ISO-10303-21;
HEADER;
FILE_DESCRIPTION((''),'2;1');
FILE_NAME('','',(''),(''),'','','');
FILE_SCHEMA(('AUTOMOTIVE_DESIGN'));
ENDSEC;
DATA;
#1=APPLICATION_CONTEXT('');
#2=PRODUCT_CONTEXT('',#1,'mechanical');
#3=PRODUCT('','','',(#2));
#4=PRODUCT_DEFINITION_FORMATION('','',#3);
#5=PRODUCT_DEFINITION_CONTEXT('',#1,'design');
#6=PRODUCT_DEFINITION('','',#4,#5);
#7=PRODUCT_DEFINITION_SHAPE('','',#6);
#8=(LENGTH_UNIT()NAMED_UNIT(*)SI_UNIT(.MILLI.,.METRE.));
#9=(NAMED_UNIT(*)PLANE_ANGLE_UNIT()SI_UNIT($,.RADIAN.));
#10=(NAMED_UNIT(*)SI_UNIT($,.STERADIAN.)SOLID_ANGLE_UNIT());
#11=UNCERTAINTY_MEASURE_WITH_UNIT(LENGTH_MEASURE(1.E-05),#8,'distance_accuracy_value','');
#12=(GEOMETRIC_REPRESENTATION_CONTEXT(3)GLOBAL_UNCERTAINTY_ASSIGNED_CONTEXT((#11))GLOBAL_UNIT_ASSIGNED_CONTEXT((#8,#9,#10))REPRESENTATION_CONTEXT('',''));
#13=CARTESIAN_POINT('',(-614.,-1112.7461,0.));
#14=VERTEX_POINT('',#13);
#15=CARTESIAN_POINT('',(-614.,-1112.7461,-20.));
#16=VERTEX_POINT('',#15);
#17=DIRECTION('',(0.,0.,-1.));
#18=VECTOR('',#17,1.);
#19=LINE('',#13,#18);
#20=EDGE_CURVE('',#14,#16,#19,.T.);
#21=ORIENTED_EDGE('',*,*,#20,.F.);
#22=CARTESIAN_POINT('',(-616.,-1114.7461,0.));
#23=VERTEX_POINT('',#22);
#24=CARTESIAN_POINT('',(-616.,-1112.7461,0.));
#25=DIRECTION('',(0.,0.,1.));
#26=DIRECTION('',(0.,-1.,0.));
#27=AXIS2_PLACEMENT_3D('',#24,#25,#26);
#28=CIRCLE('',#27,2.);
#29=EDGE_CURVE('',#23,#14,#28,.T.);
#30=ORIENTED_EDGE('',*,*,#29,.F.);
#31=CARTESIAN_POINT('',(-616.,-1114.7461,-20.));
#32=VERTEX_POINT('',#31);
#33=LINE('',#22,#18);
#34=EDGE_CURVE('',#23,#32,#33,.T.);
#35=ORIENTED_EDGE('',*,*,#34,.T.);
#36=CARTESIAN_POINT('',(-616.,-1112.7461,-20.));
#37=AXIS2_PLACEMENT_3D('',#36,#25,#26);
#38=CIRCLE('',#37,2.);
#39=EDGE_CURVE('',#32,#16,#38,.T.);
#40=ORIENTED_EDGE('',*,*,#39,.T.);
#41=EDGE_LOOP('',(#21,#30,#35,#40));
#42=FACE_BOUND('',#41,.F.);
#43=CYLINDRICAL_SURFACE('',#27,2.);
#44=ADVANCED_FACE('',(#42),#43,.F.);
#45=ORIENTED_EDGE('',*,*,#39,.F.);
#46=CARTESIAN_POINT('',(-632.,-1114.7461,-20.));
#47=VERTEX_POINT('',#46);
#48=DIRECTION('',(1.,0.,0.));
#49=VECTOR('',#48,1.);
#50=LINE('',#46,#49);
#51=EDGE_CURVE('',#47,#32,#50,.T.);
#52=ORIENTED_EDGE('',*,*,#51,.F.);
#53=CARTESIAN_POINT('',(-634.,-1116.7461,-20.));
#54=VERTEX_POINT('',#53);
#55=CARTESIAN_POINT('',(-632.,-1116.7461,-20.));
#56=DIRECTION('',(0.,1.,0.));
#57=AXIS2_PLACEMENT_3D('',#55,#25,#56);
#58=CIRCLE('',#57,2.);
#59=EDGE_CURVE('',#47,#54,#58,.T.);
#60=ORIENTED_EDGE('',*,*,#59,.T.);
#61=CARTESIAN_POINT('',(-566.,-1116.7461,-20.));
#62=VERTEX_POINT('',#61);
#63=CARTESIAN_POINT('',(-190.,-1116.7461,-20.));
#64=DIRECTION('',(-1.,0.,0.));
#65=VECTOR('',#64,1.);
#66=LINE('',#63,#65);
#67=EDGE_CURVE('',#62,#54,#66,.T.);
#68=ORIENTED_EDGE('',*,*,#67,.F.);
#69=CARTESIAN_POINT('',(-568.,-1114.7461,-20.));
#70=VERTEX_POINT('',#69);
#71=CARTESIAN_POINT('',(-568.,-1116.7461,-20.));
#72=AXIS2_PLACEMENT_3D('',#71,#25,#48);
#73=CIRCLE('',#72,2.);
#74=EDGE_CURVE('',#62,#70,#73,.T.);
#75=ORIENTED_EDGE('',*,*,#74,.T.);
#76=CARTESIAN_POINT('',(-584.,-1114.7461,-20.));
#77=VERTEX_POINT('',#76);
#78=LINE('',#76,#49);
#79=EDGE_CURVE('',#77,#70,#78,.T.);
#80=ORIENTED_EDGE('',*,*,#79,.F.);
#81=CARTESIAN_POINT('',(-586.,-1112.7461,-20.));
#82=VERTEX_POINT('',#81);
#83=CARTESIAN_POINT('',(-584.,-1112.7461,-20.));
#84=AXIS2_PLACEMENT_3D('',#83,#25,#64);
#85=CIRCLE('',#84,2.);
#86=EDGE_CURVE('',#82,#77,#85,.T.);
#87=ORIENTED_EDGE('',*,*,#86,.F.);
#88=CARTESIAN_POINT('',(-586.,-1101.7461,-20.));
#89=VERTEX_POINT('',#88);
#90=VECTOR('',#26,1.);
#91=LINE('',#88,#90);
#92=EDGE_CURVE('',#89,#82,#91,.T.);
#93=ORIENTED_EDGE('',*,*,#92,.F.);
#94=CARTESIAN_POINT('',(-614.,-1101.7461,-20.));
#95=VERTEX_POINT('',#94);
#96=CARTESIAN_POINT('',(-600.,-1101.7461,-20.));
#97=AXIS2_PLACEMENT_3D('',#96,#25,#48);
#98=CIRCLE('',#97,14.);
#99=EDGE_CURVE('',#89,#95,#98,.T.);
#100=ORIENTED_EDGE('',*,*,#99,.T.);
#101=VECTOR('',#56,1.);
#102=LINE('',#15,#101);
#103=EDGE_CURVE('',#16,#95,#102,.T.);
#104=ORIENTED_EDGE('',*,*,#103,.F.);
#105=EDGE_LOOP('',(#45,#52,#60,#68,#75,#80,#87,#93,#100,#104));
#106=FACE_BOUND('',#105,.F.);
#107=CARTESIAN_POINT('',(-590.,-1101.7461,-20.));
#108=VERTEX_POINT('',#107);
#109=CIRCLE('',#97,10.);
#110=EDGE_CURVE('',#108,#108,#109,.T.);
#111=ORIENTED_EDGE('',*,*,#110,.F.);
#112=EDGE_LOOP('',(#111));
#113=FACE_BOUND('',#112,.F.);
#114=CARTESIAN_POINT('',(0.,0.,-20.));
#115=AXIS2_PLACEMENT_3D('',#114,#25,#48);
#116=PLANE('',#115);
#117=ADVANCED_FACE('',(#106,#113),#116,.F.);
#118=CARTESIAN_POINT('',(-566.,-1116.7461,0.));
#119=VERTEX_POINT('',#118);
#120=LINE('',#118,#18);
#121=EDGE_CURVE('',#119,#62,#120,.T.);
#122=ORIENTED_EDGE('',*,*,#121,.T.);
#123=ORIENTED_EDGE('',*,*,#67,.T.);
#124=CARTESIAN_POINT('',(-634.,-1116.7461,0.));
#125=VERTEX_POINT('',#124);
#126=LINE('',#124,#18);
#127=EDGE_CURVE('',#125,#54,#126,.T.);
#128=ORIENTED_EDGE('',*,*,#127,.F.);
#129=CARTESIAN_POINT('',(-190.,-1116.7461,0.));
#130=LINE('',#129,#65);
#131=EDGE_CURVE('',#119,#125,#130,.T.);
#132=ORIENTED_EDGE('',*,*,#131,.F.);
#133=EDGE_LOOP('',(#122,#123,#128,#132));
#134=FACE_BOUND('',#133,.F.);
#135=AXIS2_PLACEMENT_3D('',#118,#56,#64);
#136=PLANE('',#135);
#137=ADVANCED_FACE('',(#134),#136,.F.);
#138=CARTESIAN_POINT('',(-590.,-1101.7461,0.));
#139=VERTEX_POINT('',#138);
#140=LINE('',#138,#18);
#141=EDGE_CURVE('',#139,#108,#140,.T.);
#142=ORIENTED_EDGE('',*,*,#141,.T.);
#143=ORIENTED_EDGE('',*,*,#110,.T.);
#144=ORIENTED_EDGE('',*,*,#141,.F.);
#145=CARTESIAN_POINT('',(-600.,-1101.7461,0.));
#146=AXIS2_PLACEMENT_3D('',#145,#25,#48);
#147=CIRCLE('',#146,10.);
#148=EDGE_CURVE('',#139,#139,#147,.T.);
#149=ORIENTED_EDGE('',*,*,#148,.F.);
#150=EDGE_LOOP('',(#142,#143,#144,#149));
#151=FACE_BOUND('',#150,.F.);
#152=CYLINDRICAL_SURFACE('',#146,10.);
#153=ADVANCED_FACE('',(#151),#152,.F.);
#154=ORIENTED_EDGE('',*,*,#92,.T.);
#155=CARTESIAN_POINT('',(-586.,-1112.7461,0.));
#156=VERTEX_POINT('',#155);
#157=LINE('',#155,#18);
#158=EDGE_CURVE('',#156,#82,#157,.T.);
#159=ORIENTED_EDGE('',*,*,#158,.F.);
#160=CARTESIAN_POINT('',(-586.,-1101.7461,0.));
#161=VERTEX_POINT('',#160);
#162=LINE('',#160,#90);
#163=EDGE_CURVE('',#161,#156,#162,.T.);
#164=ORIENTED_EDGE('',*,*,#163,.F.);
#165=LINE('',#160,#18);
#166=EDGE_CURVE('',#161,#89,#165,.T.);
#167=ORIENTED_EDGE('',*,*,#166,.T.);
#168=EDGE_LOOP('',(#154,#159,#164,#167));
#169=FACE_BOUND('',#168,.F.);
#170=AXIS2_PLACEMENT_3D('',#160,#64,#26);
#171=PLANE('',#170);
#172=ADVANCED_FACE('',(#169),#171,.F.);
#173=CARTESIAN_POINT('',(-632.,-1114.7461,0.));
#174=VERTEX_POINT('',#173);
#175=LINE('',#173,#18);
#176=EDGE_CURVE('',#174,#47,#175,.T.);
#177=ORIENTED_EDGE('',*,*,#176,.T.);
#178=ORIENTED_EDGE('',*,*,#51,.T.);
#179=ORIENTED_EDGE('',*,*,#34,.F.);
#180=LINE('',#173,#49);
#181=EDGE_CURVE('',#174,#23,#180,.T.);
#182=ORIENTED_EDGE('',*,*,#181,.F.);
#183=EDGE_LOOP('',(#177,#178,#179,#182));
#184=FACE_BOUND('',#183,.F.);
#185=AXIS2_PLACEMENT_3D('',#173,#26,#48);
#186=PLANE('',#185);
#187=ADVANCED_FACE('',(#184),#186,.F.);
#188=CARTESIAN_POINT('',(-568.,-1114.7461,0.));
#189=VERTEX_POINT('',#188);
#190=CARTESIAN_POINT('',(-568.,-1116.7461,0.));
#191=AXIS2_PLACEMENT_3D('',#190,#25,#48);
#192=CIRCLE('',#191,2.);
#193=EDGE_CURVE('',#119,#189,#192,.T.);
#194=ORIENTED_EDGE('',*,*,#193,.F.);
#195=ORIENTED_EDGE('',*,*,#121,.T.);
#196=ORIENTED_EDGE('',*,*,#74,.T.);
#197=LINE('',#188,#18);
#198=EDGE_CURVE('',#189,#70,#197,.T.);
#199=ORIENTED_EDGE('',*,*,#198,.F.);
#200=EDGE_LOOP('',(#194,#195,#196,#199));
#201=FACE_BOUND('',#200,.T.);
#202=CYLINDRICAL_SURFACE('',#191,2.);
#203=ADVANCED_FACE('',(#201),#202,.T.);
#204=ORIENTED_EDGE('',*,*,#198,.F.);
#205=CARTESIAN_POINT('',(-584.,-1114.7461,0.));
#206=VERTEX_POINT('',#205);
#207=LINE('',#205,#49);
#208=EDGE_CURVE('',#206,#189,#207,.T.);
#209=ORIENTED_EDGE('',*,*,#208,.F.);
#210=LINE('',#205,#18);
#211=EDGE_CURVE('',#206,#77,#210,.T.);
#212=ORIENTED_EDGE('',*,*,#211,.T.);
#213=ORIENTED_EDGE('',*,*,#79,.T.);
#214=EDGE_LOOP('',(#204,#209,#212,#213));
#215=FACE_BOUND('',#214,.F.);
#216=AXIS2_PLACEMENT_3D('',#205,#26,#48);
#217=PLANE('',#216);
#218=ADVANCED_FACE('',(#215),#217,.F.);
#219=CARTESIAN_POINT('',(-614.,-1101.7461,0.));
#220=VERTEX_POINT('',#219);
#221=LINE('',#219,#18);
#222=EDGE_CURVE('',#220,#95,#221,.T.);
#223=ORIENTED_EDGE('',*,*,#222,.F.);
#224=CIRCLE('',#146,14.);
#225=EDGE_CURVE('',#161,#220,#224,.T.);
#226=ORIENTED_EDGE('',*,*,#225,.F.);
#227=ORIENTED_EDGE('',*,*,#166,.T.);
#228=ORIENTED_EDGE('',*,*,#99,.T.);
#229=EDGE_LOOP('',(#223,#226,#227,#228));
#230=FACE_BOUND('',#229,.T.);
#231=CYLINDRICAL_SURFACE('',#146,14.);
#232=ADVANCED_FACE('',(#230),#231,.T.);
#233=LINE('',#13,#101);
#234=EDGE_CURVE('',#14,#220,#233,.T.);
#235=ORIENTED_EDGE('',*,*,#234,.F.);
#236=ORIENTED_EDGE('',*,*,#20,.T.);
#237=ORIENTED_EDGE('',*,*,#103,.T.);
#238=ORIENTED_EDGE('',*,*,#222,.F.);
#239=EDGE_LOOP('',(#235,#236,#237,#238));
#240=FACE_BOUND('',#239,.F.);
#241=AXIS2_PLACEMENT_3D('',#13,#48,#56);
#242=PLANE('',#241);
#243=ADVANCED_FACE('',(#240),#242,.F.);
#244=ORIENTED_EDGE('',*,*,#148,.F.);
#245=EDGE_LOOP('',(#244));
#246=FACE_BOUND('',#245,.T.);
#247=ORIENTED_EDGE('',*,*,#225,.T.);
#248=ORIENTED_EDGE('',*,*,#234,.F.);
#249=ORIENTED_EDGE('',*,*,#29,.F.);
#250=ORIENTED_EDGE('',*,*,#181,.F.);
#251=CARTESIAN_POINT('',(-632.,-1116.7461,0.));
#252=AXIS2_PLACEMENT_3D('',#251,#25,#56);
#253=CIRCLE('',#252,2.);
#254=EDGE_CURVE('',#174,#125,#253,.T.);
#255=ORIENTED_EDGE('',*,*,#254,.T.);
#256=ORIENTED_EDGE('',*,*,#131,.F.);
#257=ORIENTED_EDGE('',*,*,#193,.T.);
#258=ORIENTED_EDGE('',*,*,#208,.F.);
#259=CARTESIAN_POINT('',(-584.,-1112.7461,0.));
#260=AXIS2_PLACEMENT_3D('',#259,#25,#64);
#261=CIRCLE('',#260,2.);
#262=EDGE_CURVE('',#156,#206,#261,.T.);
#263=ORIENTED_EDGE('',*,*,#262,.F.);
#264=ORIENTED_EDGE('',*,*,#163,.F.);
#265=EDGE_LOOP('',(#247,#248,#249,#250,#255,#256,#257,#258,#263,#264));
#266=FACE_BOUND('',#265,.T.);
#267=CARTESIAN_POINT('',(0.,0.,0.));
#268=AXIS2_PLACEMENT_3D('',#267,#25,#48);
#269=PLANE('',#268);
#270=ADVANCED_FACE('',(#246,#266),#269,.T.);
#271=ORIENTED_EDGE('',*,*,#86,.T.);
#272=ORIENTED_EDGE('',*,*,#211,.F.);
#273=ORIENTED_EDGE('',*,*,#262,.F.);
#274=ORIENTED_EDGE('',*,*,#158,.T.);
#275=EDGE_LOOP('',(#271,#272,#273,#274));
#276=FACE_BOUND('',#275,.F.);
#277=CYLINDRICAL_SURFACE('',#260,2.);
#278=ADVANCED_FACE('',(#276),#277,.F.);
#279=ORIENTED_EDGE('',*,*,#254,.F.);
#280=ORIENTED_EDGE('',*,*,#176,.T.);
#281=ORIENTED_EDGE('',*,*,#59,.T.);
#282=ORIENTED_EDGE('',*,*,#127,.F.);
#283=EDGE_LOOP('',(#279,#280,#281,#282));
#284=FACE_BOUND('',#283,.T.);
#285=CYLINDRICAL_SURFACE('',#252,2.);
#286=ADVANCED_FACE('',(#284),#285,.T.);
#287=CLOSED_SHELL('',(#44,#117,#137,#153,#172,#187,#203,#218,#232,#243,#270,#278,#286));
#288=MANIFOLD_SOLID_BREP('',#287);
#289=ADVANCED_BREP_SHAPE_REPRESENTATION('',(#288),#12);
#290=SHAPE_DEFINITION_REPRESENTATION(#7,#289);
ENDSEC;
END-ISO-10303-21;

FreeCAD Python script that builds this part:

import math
import FreeCAD as App
import Part
import Sketcher

doc = App.newDocument("Part")
body = doc.addObject("PartDesign::Body", "Body")

# Sketch on XY plane
sketch1 = body.newObject("Sketcher::SketchObject", "Sketch")
sketch1.AttachmentSupport = (doc.getObject("XY_Plane"), [""])
sketch1.MapMode = "FlatFace"
sketch1.addGeometry(Part.LineSegment(App.Vector(-634, -1116.7, 0), App.Vector(-566, -1116.7, 0)), False)
sketch1.addGeometry(Part.ArcOfCircle(Part.Circle(App.Vector(-568, -1116.7, 0), App.Vector(0, 0, 1), 2), math.radians(0), math.radians(90)), False)
sketch1.addGeometry(Part.LineSegment(App.Vector(-568, -1114.7, 0), App.Vector(-584, -1114.7, 0)), False)
sketch1.addGeometry(Part.ArcOfCircle(Part.Circle(App.Vector(-584, -1112.7, 0), App.Vector(0, 0, 1), 2), math.radians(180), math.radians(270)), False)
sketch1.addGeometry(Part.LineSegment(App.Vector(-586, -1112.7, 0), App.Vector(-586, -1101.7, 0)), False)
sketch1.addGeometry(Part.ArcOfCircle(Part.Circle(App.Vector(-600, -1101.7, 0), App.Vector(0, 0, 1), 14), math.radians(0), math.radians(180)), False)
sketch1.addGeometry(Part.LineSegment(App.Vector(-614, -1101.7, 0), App.Vector(-614, -1112.7, 0)), False)
sketch1.addGeometry(Part.ArcOfCircle(Part.Circle(App.Vector(-616, -1112.7, 0), App.Vector(0, 0, 1), 2), math.radians(-90), math.radians(0)), False)
sketch1.addGeometry(Part.LineSegment(App.Vector(-616, -1114.7, 0), App.Vector(-632, -1114.7, 0)), False)
sketch1.addGeometry(Part.ArcOfCircle(Part.Circle(App.Vector(-632, -1116.7, 0), App.Vector(0, 0, 1), 2), math.radians(90), math.radians(180)), False)
sketch1.addGeometry(Part.Circle(App.Vector(-600, -1101.7, 0), App.Vector(0, 0, 1), 10), False)
sketch1.addConstraint(Sketcher.Constraint("Coincident", 0, 2, 1, 1))
sketch1.addConstraint(Sketcher.Constraint("Tangent", 1, 2, 2, 1))
sketch1.addConstraint(Sketcher.Constraint("Tangent", 2, 2, 3, 2))
sketch1.addConstraint(Sketcher.Constraint("Tangent", 3, 1, 4, 1))
sketch1.addConstraint(Sketcher.Constraint("Tangent", 4, 2, 5, 1))
sketch1.addConstraint(Sketcher.Constraint("Tangent", 5, 2, 6, 1))
sketch1.addConstraint(Sketcher.Constraint("Tangent", 6, 2, 7, 2))
sketch1.addConstraint(Sketcher.Constraint("Tangent", 7, 1, 8, 1))
sketch1.addConstraint(Sketcher.Constraint("Tangent", 8, 2, 9, 1))
sketch1.addConstraint(Sketcher.Constraint("Coincident", 9, 2, 0, 1))
sketch1.addConstraint(Sketcher.Constraint("Horizontal", 0))
sketch1.addConstraint(Sketcher.Constraint("Horizontal", 2))
sketch1.addConstraint(Sketcher.Constraint("Vertical", 4))
sketch1.addConstraint(Sketcher.Constraint("Vertical", 6))
sketch1.addConstraint(Sketcher.Constraint("Horizontal", 8))
sketch1.addConstraint(Sketcher.Constraint("Coincident", 10, 3, 5, 3))
sketch1.addConstraint(Sketcher.Constraint("Equal", 1, 3))
sketch1.addConstraint(Sketcher.Constraint("Equal", 3, 7))
sketch1.addConstraint(Sketcher.Constraint("Equal", 7, 9))
sketch1.addConstraint(Sketcher.Constraint("Horizontal", 3, 3, 7, 3))
sketch1.addConstraint(Sketcher.Constraint("Horizontal", 9, 3, 0, 2))
sketch1.addConstraint(Sketcher.Constraint("Equal", 2, 8))
sketch1.addConstraint(Sketcher.Constraint("Diameter", 10, 20.0))
sketch1.addConstraint(Sketcher.Constraint("Radius", 1, 2.0))
sketch1.addConstraint(Sketcher.Constraint("Radius", 5, 14.0))
sketch1.addConstraint(Sketcher.Constraint("DistanceY", 1, 3, 5, 3, 15.0))
sketch1.addConstraint(Sketcher.Constraint("DistanceX", 9, 2, 6, 2, 20.0))
sketch1.addConstraint(Sketcher.Constraint("DistanceX", 1, 3, -1, 1, 568.0))
sketch1.addConstraint(Sketcher.Constraint("DistanceY", 1, 3, -1, 1, 1116.746))
pad1 = body.newObject("PartDesign::Pad", "Pad")
pad1.Profile = sketch1
pad1.Length = 20
pad1.Reversed = True

doc.recompute()
